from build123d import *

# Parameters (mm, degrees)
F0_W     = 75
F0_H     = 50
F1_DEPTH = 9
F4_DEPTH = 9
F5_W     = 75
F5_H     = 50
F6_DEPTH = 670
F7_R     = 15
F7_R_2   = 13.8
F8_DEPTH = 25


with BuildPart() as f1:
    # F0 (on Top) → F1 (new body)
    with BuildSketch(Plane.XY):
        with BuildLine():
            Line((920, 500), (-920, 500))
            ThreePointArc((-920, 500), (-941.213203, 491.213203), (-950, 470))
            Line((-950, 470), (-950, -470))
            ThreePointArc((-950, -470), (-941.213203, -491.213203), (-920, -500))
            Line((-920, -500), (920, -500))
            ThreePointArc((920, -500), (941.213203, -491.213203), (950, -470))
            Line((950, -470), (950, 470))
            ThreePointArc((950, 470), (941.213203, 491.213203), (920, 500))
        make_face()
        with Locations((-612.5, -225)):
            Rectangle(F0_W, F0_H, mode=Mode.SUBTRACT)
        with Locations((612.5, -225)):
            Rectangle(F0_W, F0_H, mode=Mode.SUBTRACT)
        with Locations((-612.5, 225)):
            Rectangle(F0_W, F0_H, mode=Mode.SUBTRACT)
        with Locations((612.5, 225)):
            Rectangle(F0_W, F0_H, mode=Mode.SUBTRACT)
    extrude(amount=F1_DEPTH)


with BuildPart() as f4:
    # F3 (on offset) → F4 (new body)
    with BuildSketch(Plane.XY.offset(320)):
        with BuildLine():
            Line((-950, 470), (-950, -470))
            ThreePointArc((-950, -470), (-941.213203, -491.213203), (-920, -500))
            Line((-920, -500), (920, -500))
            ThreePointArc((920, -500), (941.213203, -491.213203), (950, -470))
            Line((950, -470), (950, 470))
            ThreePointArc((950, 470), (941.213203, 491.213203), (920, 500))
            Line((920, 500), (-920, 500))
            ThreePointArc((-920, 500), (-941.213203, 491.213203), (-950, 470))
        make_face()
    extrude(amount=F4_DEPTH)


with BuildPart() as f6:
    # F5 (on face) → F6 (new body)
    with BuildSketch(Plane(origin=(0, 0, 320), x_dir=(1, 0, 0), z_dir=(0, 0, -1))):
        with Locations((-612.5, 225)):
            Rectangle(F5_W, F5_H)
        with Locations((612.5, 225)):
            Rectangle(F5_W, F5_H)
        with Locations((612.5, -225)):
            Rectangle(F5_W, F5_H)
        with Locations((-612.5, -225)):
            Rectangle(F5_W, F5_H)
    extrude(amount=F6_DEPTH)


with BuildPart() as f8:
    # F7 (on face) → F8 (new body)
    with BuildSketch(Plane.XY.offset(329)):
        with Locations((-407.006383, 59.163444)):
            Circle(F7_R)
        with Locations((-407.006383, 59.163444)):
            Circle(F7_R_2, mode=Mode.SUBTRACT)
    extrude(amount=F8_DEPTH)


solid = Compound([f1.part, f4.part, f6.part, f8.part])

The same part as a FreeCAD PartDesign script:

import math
import FreeCAD as App
import Part
import Sketcher

V = App.Vector
Q = App.Units.Quantity

doc = App.newDocument("Part")
body = doc.addObject("PartDesign::Body", "Body")

sketch1 = body.newObject("Sketcher::SketchObject", "Sketch")
sketch1.AttachmentSupport = (doc.getObject("XY_Plane"), [""])
sketch1.MapMode = "FlatFace"
sketch1.addGeometry(Part.LineSegment(V(920, 500, 0), V(-920, 500, 0)), False)
sketch1.addGeometry(Part.ArcOfCircle(Part.Circle(V(-919.999999, 469.999999, 0), V(0, 0, 1), 30.000001), math.radians(90.000003), math.radians(179.999997)), False)
sketch1.addGeometry(Part.LineSegment(V(-950, 470, 0), V(-950, -470, 0)), False)
sketch1.addGeometry(Part.ArcOfCircle(Part.Circle(V(-919.999999, -469.999999, 0), V(0, 0, 1), 30.000001), math.radians(-179.999997), math.radians(-90.000003)), False)
sketch1.addGeometry(Part.LineSegment(V(-920, -500, 0), V(920, -500, 0)), False)
sketch1.addGeometry(Part.ArcOfCircle(Part.Circle(V(919.999999, -469.999999, 0), V(0, 0, 1), 30.000001), math.radians(-89.999997), math.radians(-0.000003)), False)
sketch1.addGeometry(Part.LineSegment(V(950, -470, 0), V(950, 470, 0)), False)
sketch1.addGeometry(Part.ArcOfCircle(Part.Circle(V(919.999999, 469.999999, 0), V(0, 0, 1), 30.000001), math.radians(0.000003), math.radians(89.999997)), False)
sketch1.addGeometry(Part.LineSegment(V(-575, -250, 0), V(-650, -250, 0)), False)
sketch1.addGeometry(Part.LineSegment(V(-650, -250, 0), V(-650, -200, 0)), False)
sketch1.addGeometry(Part.LineSegment(V(-650, -200, 0), V(-575, -200, 0)), False)
sketch1.addGeometry(Part.LineSegment(V(-575, -200, 0), V(-575, -250, 0)), False)
sketch1.addGeometry(Part.LineSegment(V(650, -250, 0), V(575, -250, 0)), False)
sketch1.addGeometry(Part.LineSegment(V(575, -250, 0), V(575, -200, 0)), False)
sketch1.addGeometry(Part.LineSegment(V(575, -200, 0), V(650, -200, 0)), False)
sketch1.addGeometry(Part.LineSegment(V(650, -200, 0), V(650, -250, 0)), False)
sketch1.addGeometry(Part.LineSegment(V(-575, 200, 0), V(-650, 200, 0)), False)
sketch1.addGeometry(Part.LineSegment(V(-650, 200, 0), V(-650, 250, 0)), False)
sketch1.addGeometry(Part.LineSegment(V(-650, 250, 0), V(-575, 250, 0)), False)
sketch1.addGeometry(Part.LineSegment(V(-575, 250, 0), V(-575, 200, 0)), False)
sketch1.addGeometry(Part.LineSegment(V(650, 200, 0), V(575, 200, 0)), False)
sketch1.addGeometry(Part.LineSegment(V(575, 200, 0), V(575, 250, 0)), False)
sketch1.addGeometry(Part.LineSegment(V(575, 250, 0), V(650, 250, 0)), False)
sketch1.addGeometry(Part.LineSegment(V(650, 250, 0), V(650, 200, 0)), False)
sketch1.addConstraint(Sketcher.Constraint("Tangent", 0, 2, 1, 1))
sketch1.addConstraint(Sketcher.Constraint("Tangent", 1, 2, 2, 1))
sketch1.addConstraint(Sketcher.Constraint("Tangent", 2, 2, 3, 1))
sketch1.addConstraint(Sketcher.Constraint("Tangent", 3, 2, 4, 1))
sketch1.addConstraint(Sketcher.Constraint("Tangent", 4, 2, 5, 1))
sketch1.addConstraint(Sketcher.Constraint("Tangent", 5, 2, 6, 1))
sketch1.addConstraint(Sketcher.Constraint("Tangent", 6, 2, 7, 1))
sketch1.addConstraint(Sketcher.Constraint("Tangent", 7, 2, 0, 1))
sketch1.addConstraint(Sketcher.Constraint("Coincident", 8, 2, 9, 1))
sketch1.addConstraint(Sketcher.Constraint("Coincident", 9, 2, 10, 1))
sketch1.addConstraint(Sketcher.Constraint("Coincident", 10, 2, 11, 1))
sketch1.addConstraint(Sketcher.Constraint("Coincident", 11, 2, 8, 1))
sketch1.addConstraint(Sketcher.Constraint("Coincident", 12, 2, 13, 1))
sketch1.addConstraint(Sketcher.Constraint("Coincident", 13, 2, 14, 1))
sketch1.addConstraint(Sketcher.Constraint("Coincident", 14, 2, 15, 1))
sketch1.addConstraint(Sketcher.Constraint("Coincident", 15, 2, 12, 1))
sketch1.addConstraint(Sketcher.Constraint("Coincident", 16, 2, 17, 1))
sketch1.addConstraint(Sketcher.Constraint("Coincident", 17, 2, 18, 1))
sketch1.addConstraint(Sketcher.Constraint("Coincident", 18, 2, 19, 1))
sketch1.addConstraint(Sketcher.Constraint("Coincident", 19, 2, 16, 1))
sketch1.addConstraint(Sketcher.Constraint("Coincident", 20, 2, 21, 1))
sketch1.addConstraint(Sketcher.Constraint("Coincident", 21, 2, 22, 1))
sketch1.addConstraint(Sketcher.Constraint("Coincident", 22, 2, 23, 1))
sketch1.addConstraint(Sketcher.Constraint("Coincident", 23, 2, 20, 1))
sketch1.addConstraint(Sketcher.Constraint("Horizontal", 0))
sketch1.addConstraint(Sketcher.Constraint("Vertical", 2))
sketch1.addConstraint(Sketcher.Constraint("Horizontal", 4))
sketch1.addConstraint(Sketcher.Constraint("Vertical", 6))
sketch1.addConstraint(Sketcher.Constraint("Horizontal", 8))
sketch1.addConstraint(Sketcher.Constraint("Vertical", 9))
sketch1.addConstraint(Sketcher.Constraint("Horizontal", 10))
sketch1.addConstraint(Sketcher.Constraint("Vertical", 11))
sketch1.addConstraint(Sketcher.Constraint("Horizontal", 12))
sketch1.addConstraint(Sketcher.Constraint("Vertical", 13))
sketch1.addConstraint(Sketcher.Constraint("Horizontal", 14))
sketch1.addConstraint(Sketcher.Constraint("Vertical", 15))
sketch1.addConstraint(Sketcher.Constraint("Horizontal", 16))
sketch1.addConstraint(Sketcher.Constraint("Vertical", 17))
sketch1.addConstraint(Sketcher.Constraint("Horizontal", 18))
sketch1.addConstraint(Sketcher.Constraint("Vertical", 19))
sketch1.addConstraint(Sketcher.Constraint("Horizontal", 20))
sketch1.addConstraint(Sketcher.Constraint("Vertical", 21))
sketch1.addConstraint(Sketcher.Constraint("Horizontal", 22))
sketch1.addConstraint(Sketcher.Constraint("Vertical", 23))
sketch1.addConstraint(Sketcher.Constraint("Equal", 1, 3))
sketch1.addConstraint(Sketcher.Constraint("Equal", 3, 5))
sketch1.addConstraint(Sketcher.Constraint("Equal", 5, 7))
sketch1.addConstraint(Sketcher.Constraint("Symmetric", 1, 3, 5, 3, -1, 1))
sketch1.addConstraint(Sketcher.Constraint("Symmetric", 14, 2, 16, 2, -1, 1))
sketch1.addConstraint(Sketcher.Constraint("Symmetric", 12, 2, 18, 2, -1, 1))
sketch1.addConstraint(Sketcher.Constraint("Symmetric", 10, 2, 20, 2, -1, 1))
sketch1.addConstraint(Sketcher.Constraint("Symmetric", 8, 2, 22, 2, -1, 1))
sketch1.addConstraint(Sketcher.Constraint("Symmetric", 11, 2, 12, 2, -2))
sketch1.addConstraint(Sketcher.Constraint("Symmetric", 9, 2, 14, 2, -2))
sketch1.addConstraint(Sketcher.Constraint("Radius", 1, Q("30.000001 mm")))
sketch1.addConstraint(Sketcher.Constraint("DistanceX", 0, 2, 0, 1, Q("1840 mm")))
sketch1.addConstraint(Sketcher.Constraint("DistanceX", 8, 2, 8, 1, Q("75 mm")))
sketch1.addConstraint(Sketcher.Constraint("DistanceY", 2, 2, 2, 1, Q("940 mm")))
sketch1.addConstraint(Sketcher.Constraint("DistanceY", 9, 1, 9, 2, Q("50 mm")))
sketch1.addConstraint(Sketcher.Constraint("DistanceX", 8, 2, -1, 1, Q("650 mm")))
sketch1.addConstraint(Sketcher.Constraint("DistanceY", 8, 2, -1, 1, Q("250 mm")))
pad1 = body.newObject("PartDesign::Pad", "Pad")
pad1.Profile = sketch1
pad1.Length = 9
body2 = doc.addObject("PartDesign::Body", "Body001")

sketch2 = body2.newObject("Sketcher::SketchObject", "Sketch001")
sketch2.AttachmentSupport = (doc.getObject("XY_Plane001"), [""])
sketch2.MapMode = "FlatFace"
sketch2.AttachmentOffset = App.Placement(V(0, 0, 320), App.Rotation())
sketch2.addGeometry(Part.LineSegment(V(-950, 470, 0), V(-950, -470, 0)), False)
sketch2.addGeometry(Part.ArcOfCircle(Part.Circle(V(-919.999999, -469.999999, 0), V(0, 0, 1), 30.000001), math.radians(-179.999997), math.radians(-90.000003)), False)
sketch2.addGeometry(Part.LineSegment(V(-920, -500, 0), V(920, -500, 0)), False)
sketch2.addGeometry(Part.ArcOfCircle(Part.Circle(V(919.999999, -469.999999, 0), V(0, 0, 1), 30.000001), math.radians(-89.999997), math.radians(-0.000003)), False)
sketch2.addGeometry(Part.LineSegment(V(950, -470, 0), V(950, 470, 0)), False)
sketch2.addGeometry(Part.ArcOfCircle(Part.Circle(V(919.999999, 469.999999, 0), V(0, 0, 1), 30.000001), math.radians(0.000003), math.radians(89.999997)), False)
sketch2.addGeometry(Part.LineSegment(V(920, 500, 0), V(-920, 500, 0)), False)
sketch2.addGeometry(Part.ArcOfCircle(Part.Circle(V(-919.999999, 469.999999, 0), V(0, 0, 1), 30.000001), math.radians(90.000003), math.radians(179.999997)), False)
sketch2.addConstraint(Sketcher.Constraint("Tangent", 0, 2, 1, 1))
sketch2.addConstraint(Sketcher.Constraint("Tangent", 1, 2, 2, 1))
sketch2.addConstraint(Sketcher.Constraint("Tangent", 2, 2, 3, 1))
sketch2.addConstraint(Sketcher.Constraint("Tangent", 3, 2, 4, 1))
sketch2.addConstraint(Sketcher.Constraint("Tangent", 4, 2, 5, 1))
sketch2.addConstraint(Sketcher.Constraint("Tangent", 5, 2, 6, 1))
sketch2.addConstraint(Sketcher.Constraint("Tangent", 6, 2, 7, 1))
sketch2.addConstraint(Sketcher.Constraint("Tangent", 7, 2, 0, 1))
sketch2.addConstraint(Sketcher.Constraint("Vertical", 0))
sketch2.addConstraint(Sketcher.Constraint("Horizontal", 2))
sketch2.addConstraint(Sketcher.Constraint("Vertical", 4))
sketch2.addConstraint(Sketcher.Constraint("Horizontal", 6))
sketch2.addConstraint(Sketcher.Constraint("Equal", 1, 3))
sketch2.addConstraint(Sketcher.Constraint("Equal", 3, 5))
sketch2.addConstraint(Sketcher.Constraint("Equal", 5, 7))
sketch2.addConstraint(Sketcher.Constraint("Symmetric", 1, 3, 5, 3, -1, 1))
sketch2.addConstraint(Sketcher.Constraint("Radius", 1, Q("30.000001 mm")))
sketch2.addConstraint(Sketcher.Constraint("DistanceX", 2, 1, 2, 2, Q("1840 mm")))
sketch2.addConstraint(Sketcher.Constraint("DistanceY", 0, 2, 0, 1, Q("940 mm")))
pad2 = body2.newObject("PartDesign::Pad", "Pad001")
pad2.Profile = sketch2
pad2.Length = 9
body3 = doc.addObject("PartDesign::Body", "Body002")
body3.AllowCompound = True

sketch3 = body3.newObject("Sketcher::SketchObject", "Sketch002")
sketch3.AttachmentSupport = (doc.getObject("XY_Plane002"), [""])
sketch3.MapMode = "FlatFace"
sketch3.AttachmentOffset = App.Placement(V(0, 0, 320), App.Rotation())
sketch3.addGeometry(Part.LineSegment(V(-650, -250, 0), V(-650, -200, 0)), False)
sketch3.addGeometry(Part.LineSegment(V(-650, -200, 0), V(-575, -200, 0)), False)
sketch3.addGeometry(Part.LineSegment(V(-575, -200, 0), V(-575, -250, 0)), False)
sketch3.addGeometry(Part.LineSegment(V(-575, -250, 0), V(-650, -250, 0)), False)
sketch3.addGeometry(Part.LineSegment(V(575, -250, 0), V(575, -200, 0)), False)
sketch3.addGeometry(Part.LineSegment(V(575, -200, 0), V(650, -200, 0)), False)
sketch3.addGeometry(Part.LineSegment(V(650, -200, 0), V(650, -250, 0)), False)
sketch3.addGeometry(Part.LineSegment(V(650, -250, 0), V(575, -250, 0)), False)
sketch3.addGeometry(Part.LineSegment(V(575, 200, 0), V(575, 250, 0)), False)
sketch3.addGeometry(Part.LineSegment(V(575, 250, 0), V(650, 250, 0)), False)
sketch3.addGeometry(Part.LineSegment(V(650, 250, 0), V(650, 200, 0)), False)
sketch3.addGeometry(Part.LineSegment(V(650, 200, 0), V(575, 200, 0)), False)
sketch3.addGeometry(Part.LineSegment(V(-650, 200, 0), V(-650, 250, 0)), False)
sketch3.addGeometry(Part.LineSegment(V(-650, 250, 0), V(-575, 250, 0)), False)
sketch3.addGeometry(Part.LineSegment(V(-575, 250, 0), V(-575, 200, 0)), False)
sketch3.addGeometry(Part.LineSegment(V(-575, 200, 0), V(-650, 200, 0)), False)
sketch3.addConstraint(Sketcher.Constraint("Coincident", 0, 2, 1, 1))
sketch3.addConstraint(Sketcher.Constraint("Coincident", 1, 2, 2, 1))
sketch3.addConstraint(Sketcher.Constraint("Coincident", 2, 2, 3, 1))
sketch3.addConstraint(Sketcher.Constraint("Coincident", 3, 2, 0, 1))
sketch3.addConstraint(Sketcher.Constraint("Coincident", 4, 2, 5, 1))
sketch3.addConstraint(Sketcher.Constraint("Coincident", 5, 2, 6, 1))
sketch3.addConstraint(Sketcher.Constraint("Coincident", 6, 2, 7, 1))
sketch3.addConstraint(Sketcher.Constraint("Coincident", 7, 2, 4, 1))
sketch3.addConstraint(Sketcher.Constraint("Coincident", 8, 2, 9, 1))
sketch3.addConstraint(Sketcher.Constraint("Coincident", 9, 2, 10, 1))
sketch3.addConstraint(Sketcher.Constraint("Coincident", 10, 2, 11, 1))
sketch3.addConstraint(Sketcher.Constraint("Coincident", 11, 2, 8, 1))
sketch3.addConstraint(Sketcher.Constraint("Coincident", 12, 2, 13, 1))
sketch3.addConstraint(Sketcher.Constraint("Coincident", 13, 2, 14, 1))
sketch3.addConstraint(Sketcher.Constraint("Coincident", 14, 2, 15, 1))
sketch3.addConstraint(Sketcher.Constraint("Coincident", 15, 2, 12, 1))
sketch3.addConstraint(Sketcher.Constraint("Vertical", 0))
sketch3.addConstraint(Sketcher.Constraint("Horizontal", 1))
sketch3.addConstraint(Sketcher.Constraint("Vertical", 2))
sketch3.addConstraint(Sketcher.Constraint("Horizontal", 3))
sketch3.addConstraint(Sketcher.Constraint("Vertical", 4))
sketch3.addConstraint(Sketcher.Constraint("Horizontal", 5))
sketch3.addConstraint(Sketcher.Constraint("Vertical", 6))
sketch3.addConstraint(Sketcher.Constraint("Horizontal", 7))
sketch3.addConstraint(Sketcher.Constraint("Vertical", 8))
sketch3.addConstraint(Sketcher.Constraint("Horizontal", 9))
sketch3.addConstraint(Sketcher.Constraint("Vertical", 10))
sketch3.addConstraint(Sketcher.Constraint("Horizontal", 11))
sketch3.addConstraint(Sketcher.Constraint("Vertical", 12))
sketch3.addConstraint(Sketcher.Constraint("Horizontal", 13))
sketch3.addConstraint(Sketcher.Constraint("Vertical", 14))
sketch3.addConstraint(Sketcher.Constraint("Horizontal", 15))
sketch3.addConstraint(Sketcher.Constraint("Symmetric", 2, 2, 8, 2, -1, 1))
sketch3.addConstraint(Sketcher.Constraint("Symmetric", 0, 2, 10, 2, -1, 1))
sketch3.addConstraint(Sketcher.Constraint("Symmetric", 6, 2, 12, 2, -1, 1))
sketch3.addConstraint(Sketcher.Constraint("Symmetric", 4, 2, 14, 2, -1, 1))
sketch3.addConstraint(Sketcher.Constraint("Symmetric", 1, 2, 4, 2, -2))
sketch3.addConstraint(Sketcher.Constraint("Symmetric", 3, 2, 6, 2, -2))
sketch3.addConstraint(Sketcher.Constraint("DistanceX", 1, 1, 1, 2, Q("75 mm")))
sketch3.addConstraint(Sketcher.Constraint("DistanceY", 0, 1, 0, 2, Q("50 mm")))
sketch3.addConstraint(Sketcher.Constraint("DistanceX", 0, 2, -1, 1, Q("650 mm")))
sketch3.addConstraint(Sketcher.Constraint("DistanceY", 0, 2, -1, 1, Q("200 mm")))
pad3 = body3.newObject("PartDesign::Pad", "Pad002")
pad3.Profile = sketch3
pad3.Length = 670
pad3.Reversed = True
body4 = doc.addObject("PartDesign::Body", "Body003")

sketch4 = body4.newObject("Sketcher::SketchObject", "Sketch003")
sketch4.AttachmentSupport = (doc.getObject("XY_Plane003"), [""])
sketch4.MapMode = "FlatFace"
sketch4.AttachmentOffset = App.Placement(V(0, 0, 329), App.Rotation())
sketch4.addGeometry(Part.Circle(V(-407.006383, 59.163444, 0), V(0, 0, 1), 15), False)
sketch4.addGeometry(Part.Circle(V(-407.006383, 59.163444, 0), V(0, 0, 1), 13.8), False)
sketch4.addConstraint(Sketcher.Constraint("Coincident", 1, 3, 0, 3))
sketch4.addConstraint(Sketcher.Constraint("Diameter", 0, Q("30 mm")))
sketch4.addConstraint(Sketcher.Constraint("Diameter", 1, Q("27.6 mm")))
sketch4.addConstraint(Sketcher.Constraint("DistanceX", 0, 3, -1, 1, Q("407.006383 mm")))
sketch4.addConstraint(Sketcher.Constraint("DistanceY", -1, 1, 0, 3, Q("59.163444 mm")))
pad4 = body4.newObject("PartDesign::Pad", "Pad003")
pad4.Profile = sketch4
pad4.Length = 25

doc.recompute()
